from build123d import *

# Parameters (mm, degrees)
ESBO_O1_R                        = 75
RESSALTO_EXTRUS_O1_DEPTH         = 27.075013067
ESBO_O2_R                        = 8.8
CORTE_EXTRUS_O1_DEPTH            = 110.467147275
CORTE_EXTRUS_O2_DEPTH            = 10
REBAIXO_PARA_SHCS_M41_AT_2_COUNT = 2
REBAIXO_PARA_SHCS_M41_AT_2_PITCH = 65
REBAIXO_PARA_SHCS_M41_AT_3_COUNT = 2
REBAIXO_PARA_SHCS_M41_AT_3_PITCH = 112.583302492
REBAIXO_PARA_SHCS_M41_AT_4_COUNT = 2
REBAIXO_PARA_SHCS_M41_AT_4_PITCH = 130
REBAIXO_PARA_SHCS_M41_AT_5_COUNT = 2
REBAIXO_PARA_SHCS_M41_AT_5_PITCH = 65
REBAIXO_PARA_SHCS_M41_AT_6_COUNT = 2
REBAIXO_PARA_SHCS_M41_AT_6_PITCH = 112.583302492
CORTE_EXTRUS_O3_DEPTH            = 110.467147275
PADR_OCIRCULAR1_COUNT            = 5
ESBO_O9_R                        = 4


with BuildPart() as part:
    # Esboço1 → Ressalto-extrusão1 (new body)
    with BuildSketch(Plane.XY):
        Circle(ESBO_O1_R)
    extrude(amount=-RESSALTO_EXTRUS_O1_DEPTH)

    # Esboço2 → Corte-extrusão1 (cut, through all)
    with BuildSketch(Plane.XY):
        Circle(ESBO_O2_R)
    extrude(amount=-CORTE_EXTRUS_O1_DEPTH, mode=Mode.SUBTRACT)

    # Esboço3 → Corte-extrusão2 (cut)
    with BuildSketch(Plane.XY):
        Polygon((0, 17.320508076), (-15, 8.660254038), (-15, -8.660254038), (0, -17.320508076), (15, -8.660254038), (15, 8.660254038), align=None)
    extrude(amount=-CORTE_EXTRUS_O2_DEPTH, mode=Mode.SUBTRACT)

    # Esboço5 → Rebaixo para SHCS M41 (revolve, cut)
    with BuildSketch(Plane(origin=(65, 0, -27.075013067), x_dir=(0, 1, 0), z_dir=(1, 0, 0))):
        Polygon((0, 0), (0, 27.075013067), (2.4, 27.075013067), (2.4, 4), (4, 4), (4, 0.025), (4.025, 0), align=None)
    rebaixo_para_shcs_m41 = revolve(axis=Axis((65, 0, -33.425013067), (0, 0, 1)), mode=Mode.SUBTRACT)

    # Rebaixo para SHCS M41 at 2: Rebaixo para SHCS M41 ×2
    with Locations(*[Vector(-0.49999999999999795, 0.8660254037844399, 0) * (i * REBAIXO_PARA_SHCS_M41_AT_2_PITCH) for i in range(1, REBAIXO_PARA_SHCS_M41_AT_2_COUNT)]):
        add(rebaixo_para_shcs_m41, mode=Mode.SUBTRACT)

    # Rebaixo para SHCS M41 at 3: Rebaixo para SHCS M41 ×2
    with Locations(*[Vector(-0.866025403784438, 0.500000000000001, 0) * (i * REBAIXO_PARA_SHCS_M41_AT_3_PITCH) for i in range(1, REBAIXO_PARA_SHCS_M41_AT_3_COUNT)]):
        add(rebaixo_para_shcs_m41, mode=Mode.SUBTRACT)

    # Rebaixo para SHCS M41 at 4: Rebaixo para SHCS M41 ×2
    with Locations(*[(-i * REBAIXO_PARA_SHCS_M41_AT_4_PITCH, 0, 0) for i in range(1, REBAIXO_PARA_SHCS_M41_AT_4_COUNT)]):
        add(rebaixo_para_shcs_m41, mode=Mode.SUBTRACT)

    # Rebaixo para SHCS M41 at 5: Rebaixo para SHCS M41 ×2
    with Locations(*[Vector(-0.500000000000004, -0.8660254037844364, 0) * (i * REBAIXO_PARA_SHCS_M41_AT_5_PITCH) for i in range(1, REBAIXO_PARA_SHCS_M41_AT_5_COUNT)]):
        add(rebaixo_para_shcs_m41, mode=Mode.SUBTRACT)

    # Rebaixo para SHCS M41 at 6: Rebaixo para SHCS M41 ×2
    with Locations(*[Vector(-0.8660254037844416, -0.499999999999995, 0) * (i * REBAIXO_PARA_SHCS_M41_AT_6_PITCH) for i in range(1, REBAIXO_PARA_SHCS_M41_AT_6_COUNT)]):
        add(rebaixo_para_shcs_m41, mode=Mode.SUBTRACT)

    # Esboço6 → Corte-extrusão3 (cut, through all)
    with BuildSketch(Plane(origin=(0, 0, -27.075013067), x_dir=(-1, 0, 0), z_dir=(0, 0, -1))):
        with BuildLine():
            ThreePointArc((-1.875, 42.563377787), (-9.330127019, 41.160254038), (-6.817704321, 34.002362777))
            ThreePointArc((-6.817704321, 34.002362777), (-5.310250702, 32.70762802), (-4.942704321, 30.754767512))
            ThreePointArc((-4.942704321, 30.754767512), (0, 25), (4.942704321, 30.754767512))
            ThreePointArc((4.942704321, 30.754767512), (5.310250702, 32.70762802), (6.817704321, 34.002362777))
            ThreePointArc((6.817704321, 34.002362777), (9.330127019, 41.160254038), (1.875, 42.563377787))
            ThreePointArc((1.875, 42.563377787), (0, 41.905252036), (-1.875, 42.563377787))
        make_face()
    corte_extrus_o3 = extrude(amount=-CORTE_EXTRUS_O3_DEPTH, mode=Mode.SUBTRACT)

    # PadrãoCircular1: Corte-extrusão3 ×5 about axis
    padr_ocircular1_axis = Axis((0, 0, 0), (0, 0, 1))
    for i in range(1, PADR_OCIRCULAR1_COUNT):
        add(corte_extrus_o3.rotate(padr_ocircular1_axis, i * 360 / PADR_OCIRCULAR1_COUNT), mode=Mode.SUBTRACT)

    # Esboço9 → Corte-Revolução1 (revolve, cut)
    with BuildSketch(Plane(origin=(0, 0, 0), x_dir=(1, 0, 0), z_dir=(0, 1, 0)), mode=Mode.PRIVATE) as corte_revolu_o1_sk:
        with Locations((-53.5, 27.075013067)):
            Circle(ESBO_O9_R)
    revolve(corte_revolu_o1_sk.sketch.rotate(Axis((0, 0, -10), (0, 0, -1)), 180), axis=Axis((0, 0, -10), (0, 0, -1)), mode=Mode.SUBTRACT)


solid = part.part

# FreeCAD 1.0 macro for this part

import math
import FreeCAD as App
import Part
import Sketcher
from FreeCAD import Vector
Q = App.Units.Quantity


def add_polygon(sketch, points):
    """Adds a closed chain of lines whose ends are joined by coincident constraints."""
    first, n = sketch.GeometryCount, len(points)
    for a, b in zip(points, points[1:] + points[:1]):
        sketch.addGeometry(Part.LineSegment(App.Vector(*a, 0), App.Vector(*b, 0)), False)
    for i in range(n):
        sketch.addConstraint(Sketcher.Constraint("Coincident", first + i, 2, first + (i + 1) % n, 1))

doc = App.newDocument("Part")
params = doc.addObject("Spreadsheet::Sheet", "Params")
for row, (alias, value) in enumerate([
    ("sketch1_diameter", "150 mm"),
    ("pad1_length", "27.075013 mm"),
    ("sketch2_diameter", "17.6 mm"),
    ("pocket2_length", "10 mm"),
    ("sketch4_width", "1.6 mm"),
    ("sketch4_width2", "2.4 mm"),
    ("groove_angle", "360 deg"),
    ("linearpattern_pitch", "65 mm"),
    ("linearpattern2_pitch", "112.583302 mm"),
    ("linearpattern3_pitch", "130 mm"),
    ("linearpattern4_pitch", "65 mm"),
    ("linearpattern5_pitch", "112.583302 mm"),
    ("sketch5_radius", "5 mm"),
    ("sketch5_radius2", "3 mm"),
    ("sketch6_diameter", "8 mm"),
    ("groove2_angle", "360 deg"),
], start=1):
    params.set(f"A{row}", alias)
    params.set(f"B{row}", "=" + value)
    params.setAlias(f"B{row}", alias)

body = doc.addObject("PartDesign::Body", "Body")

# Sketch on XY plane
sketch1 = body.newObject("Sketcher::SketchObject", "Sketch")
sketch1.AttachmentSupport = (doc.getObject("XY_Plane"), [""])
sketch1.MapMode = "FlatFace"
sketch1.addGeometry(Part.Circle(Vector(0, 0, 0), Vector(0, 0, 1), 75), False)
sketch1.addConstraint([
    Sketcher.Constraint("Coincident", 0, 3, -1, 1),
    Sketcher.Constraint("Diameter", 0, Q("150 mm")),
])
sketch1.setExpression("Constraints[1]", "Params.sketch1_diameter")
pad1 = body.newObject("PartDesign::Pad", "Pad")
pad1.Profile = sketch1
pad1.setExpression("Length", "Params.pad1_length")
pad1.Reversed = True

# Sketch on XY plane
sketch2 = body.newObject("Sketcher::SketchObject", "Sketch001")
sketch2.AttachmentSupport = (doc.getObject("XY_Plane"), [""])
sketch2.MapMode = "FlatFace"
sketch2.addGeometry(Part.Circle(Vector(0, 0, 0), Vector(0, 0, 1), 9), False)
sketch2.addConstraint([
    Sketcher.Constraint("Coincident", 0, 3, -1, 1),
    Sketcher.Constraint("Diameter", 0, Q("17.6 mm")),
])
sketch2.setExpression("Constraints[1]", "Params.sketch2_diameter")
pocket1 = body.newObject("PartDesign::Pocket", "Pocket")
pocket1.Profile = sketch2
pocket1.Type = "ThroughAll"

# Sketch on XY plane
sketch3 = body.newObject("Sketcher::SketchObject", "Sketch002")
sketch3.AttachmentSupport = (doc.getObject("XY_Plane"), [""])
sketch3.MapMode = "FlatFace"
add_polygon(sketch3, [(0, 17), (-15, 9), (-15, -9), (0, -17), (15, -9), (15, 9)])  # lines 0-5
sketch3.addConstraint([
    Sketcher.Constraint("Vertical", 1),
    Sketcher.Constraint("Vertical", 4),
    Sketcher.Constraint("Symmetric", 0, 2, 3, 2, -1, 1),
    Sketcher.Constraint("Symmetric", 2, 2, 5, 2, -1, 1),
    Sketcher.Constraint("PointOnObject", 2, 2, -2),
    Sketcher.Constraint("Parallel", 2, 5),
    Sketcher.Constraint("Horizontal", 1, 2, 3, 2),
    Sketcher.Constraint("Angle", 0, Q("-150 deg")),
    Sketcher.Constraint("DistanceX", 0, 2, -1, 1, Q("15 mm")),
    Sketcher.Constraint("DistanceY", 1, 2, 1, 1, Q("17.320508 mm")),
])
pocket2 = body.newObject("PartDesign::Pocket", "Pocket001")
pocket2.Profile = sketch3
pocket2.setExpression("Length", "Params.pocket2_length")

# Sketch on YZ plane
sketch4 = body.newObject("Sketcher::SketchObject", "Sketch003")
sketch4.AttachmentSupport = (doc.getObject("YZ_Plane"), [""])
sketch4.MapMode = "FlatFace"
sketch4.AttachmentOffset = App.Placement(Vector(0, 0, 65), App.Rotation())
add_polygon(sketch4, [(0, 0), (0, -27.075), (4.025, -27.075), (4, -27.05), (4, -23.075), (2.4, -23.075), (2.4, 0)])  # lines 0-6
sketch4.addConstraint([
    Sketcher.Constraint("Vertical", 0),
    Sketcher.Constraint("Horizontal", 1),
    Sketcher.Constraint("Vertical", 3),
    Sketcher.Constraint("Horizontal", 4),
    Sketcher.Constraint("Vertical", 5),
    Sketcher.Constraint("Horizontal", 6),
    Sketcher.Constraint("Coincident", 6, 2, -1, 1),
    Sketcher.Constraint("Angle", 2, Q("135 deg")),
    Sketcher.Constraint("DistanceX", 4, 2, 4, 1, Q("1.6 mm")),
    Sketcher.Constraint("DistanceX", 6, 2, 6, 1, Q("2.4 mm")),
    Sketcher.Constraint("DistanceY", 1, 2, 3, 2, Q("4 mm")),
    Sketcher.Constraint("DistanceX", 1, 1, 1, 2, Q("4.025 mm")),
    Sketcher.Constraint("DistanceY", 0, 2, 0, 1, Q("27.075013 mm")),
])
sketch4.setExpression("Constraints[15]", "Params.sketch4_width")
sketch4.setExpression("Constraints[16]", "Params.sketch4_width2")
groove = body.newObject("PartDesign::Groove", "Groove")
groove.Profile = sketch4
groove.ReferenceAxis = (sketch4, ["V_Axis"])
groove.setExpression("Angle", "Params.groove_angle")
doc.recompute()

datumline = body.newObject("PartDesign::Line", "DatumLine")
datumline.Placement = App.Placement(Vector(0, 0, 0), App.Rotation(Vector(0, 0, 1), Vector(-0.5, 0.866025404, 0)))
linearpattern = body.newObject("PartDesign::LinearPattern", "LinearPattern")
linearpattern.Originals = [groove]
linearpattern.Direction = (datumline, [""])
linearpattern.Mode = "offset"
linearpattern.setExpression("Offset", "Params.linearpattern_pitch")
linearpattern.Occurrences = 2
body.Tip = linearpattern
doc.recompute()

datumline2 = body.newObject("PartDesign::Line", "DatumLine001")
datumline2.Placement = App.Placement(Vector(0, 0, 0), App.Rotation(Vector(0, 0, 1), Vector(-0.866025404, 0.5, 0)))
linearpattern2 = body.newObject("PartDesign::LinearPattern", "LinearPattern001")
linearpattern2.Originals = [groove]
linearpattern2.Direction = (datumline2, [""])
linearpattern2.Mode = "offset"
linearpattern2.setExpression("Offset", "Params.linearpattern2_pitch")
linearpattern2.Occurrences = 2
body.Tip = linearpattern2
doc.recompute()

linearpattern3 = body.newObject("PartDesign::LinearPattern", "LinearPattern002")
linearpattern3.Originals = [groove]
linearpattern3.Direction = (doc.getObject("X_Axis"), [""])
linearpattern3.Mode = "offset"
linearpattern3.setExpression("Offset", "Params.linearpattern3_pitch")
linearpattern3.Occurrences = 2
linearpattern3.Reversed = True
body.Tip = linearpattern3
doc.recompute()

datumline3 = body.newObject("PartDesign::Line", "DatumLine002")
datumline3.Placement = App.Placement(Vector(0, 0, 0), App.Rotation(Vector(0, 0, 1), Vector(-0.5, -0.866025404, 0)))
linearpattern4 = body.newObject("PartDesign::LinearPattern", "LinearPattern003")
linearpattern4.Originals = [groove]
linearpattern4.Direction = (datumline3, [""])
linearpattern4.Mode = "offset"
linearpattern4.setExpression("Offset", "Params.linearpattern4_pitch")
linearpattern4.Occurrences = 2
body.Tip = linearpattern4
doc.recompute()

datumline4 = body.newObject("PartDesign::Line", "DatumLine003")
datumline4.Placement = App.Placement(Vector(0, 0, 0), App.Rotation(Vector(0, 0, 1), Vector(-0.866025404, -0.5, 0)))
linearpattern5 = body.newObject("PartDesign::LinearPattern", "LinearPattern004")
linearpattern5.Originals = [groove]
linearpattern5.Direction = (datumline4, [""])
linearpattern5.Mode = "offset"
linearpattern5.setExpression("Offset", "Params.linearpattern5_pitch")
linearpattern5.Occurrences = 2
body.Tip = linearpattern5

# Sketch on XY plane
sketch5 = body.newObject("Sketcher::SketchObject", "Sketch004")
sketch5.AttachmentSupport = (doc.getObject("XY_Plane"), [""])
sketch5.MapMode = "FlatFace"
sketch5.AttachmentOffset = App.Placement(Vector(0, 0, -27.075013), App.Rotation())
sketch5.addGeometry([
    Part.ArcOfCircle(Part.Circle(Vector(5, 38.7, 0), Vector(0, 0, 1), 5), math.radians(-69), math.radians(129)),  # 0
    Part.ArcOfCircle(Part.Circle(Vector(7.9, 31.2, 0), Vector(0, 0, 1), 3), math.radians(111), math.radians(189)),  # 1
    Part.ArcOfCircle(Part.Circle(Vector(0, 30, 0), Vector(0, 0, 1), 5), math.radians(171), math.radians(369)),  # 2
    Part.ArcOfCircle(Part.Circle(Vector(-7.9, 31.2, 0), Vector(0, 0, 1), 3), math.radians(-9), math.radians(69)),  # 3
    Part.ArcOfCircle(Part.Circle(Vector(-5, 38.7, 0), Vector(0, 0, 1), 5), math.radians(51), math.radians(249)),  # 4
    Part.ArcOfCircle(Part.Circle(Vector(0, 44.9, 0), Vector(0, 0, 1), 3), math.radians(-129), math.radians(-51)),  # 5
], False)
sketch5.addConstraint([
    Sketcher.Constraint("Tangent", 0, 1, 1, 1),
    Sketcher.Constraint("Tangent", 1, 2, 2, 2),
    Sketcher.Constraint("Tangent", 2, 1, 3, 1),
    Sketcher.Constraint("Tangent", 3, 2, 4, 2),
    Sketcher.Constraint("Tangent", 4, 1, 5, 1),
    Sketcher.Constraint("Tangent", 5, 2, 0, 2),
    Sketcher.Constraint("Equal", 0, 2),
    Sketcher.Constraint("Equal", 1, 3),
    Sketcher.Constraint("Equal", 2, 4),
    Sketcher.Constraint("Equal", 3, 5),
    Sketcher.Constraint("Symmetric", 1, 3, 3, 3, -2),
    Sketcher.Constraint("PointOnObject", 5, 3, -2),
    Sketcher.Constraint("Radius", 0, Q("5 mm")),
    Sketcher.Constraint("Radius", 1, Q("3 mm")),
    Sketcher.Constraint("DistanceX", -1, 1, 0, 3, Q("5 mm")),
    Sketcher.Constraint("DistanceY", -1, 1, 2, 3, Q("30 mm")),
    Sketcher.Constraint("DistanceY", -1, 1, 1, 3, Q("31.207628 mm")),
])
sketch5.setExpression("Constraints[12]", "Params.sketch5_radius")
sketch5.setExpression("Constraints[13]", "Params.sketch5_radius2")
pocket3 = body.newObject("PartDesign::Pocket", "Pocket002")
pocket3.Profile = sketch5
pocket3.Type = "ThroughAll"
pocket3.Reversed = True
doc.recompute()

polarpattern = body.newObject("PartDesign::PolarPattern", "PolarPattern")
polarpattern.Originals = [pocket3]
polarpattern.Axis = (doc.getObject("Z_Axis"), [""])
polarpattern.Angle = 360
polarpattern.Occurrences = 5
body.Tip = polarpattern

# Sketch on XZ plane
sketch6 = body.newObject("Sketcher::SketchObject", "Sketch005")
sketch6.AttachmentSupport = (doc.getObject("XZ_Plane"), [""])
sketch6.MapMode = "FlatFace"
sketch6.addGeometry(Part.Circle(Vector(-53.5, -27.1, 0), Vector(0, 0, 1), 4), False)
sketch6.addConstraint([
    Sketcher.Constraint("Diameter", 0, Q("8 mm")),
    Sketcher.Constraint("DistanceX", 0, 3, -1, 1, Q("53.5 mm")),
    Sketcher.Constraint("DistanceY", 0, 3, -1, 1, Q("27.075013 mm")),
])
sketch6.setExpression("Constraints[0]", "Params.sketch6_diameter")
groove2 = body.newObject("PartDesign::Groove", "Groove001")
groove2.Profile = sketch6
groove2.ReferenceAxis = (sketch6, ["V_Axis"])
groove2.setExpression("Angle", "Params.groove2_angle")

doc.recompute()
